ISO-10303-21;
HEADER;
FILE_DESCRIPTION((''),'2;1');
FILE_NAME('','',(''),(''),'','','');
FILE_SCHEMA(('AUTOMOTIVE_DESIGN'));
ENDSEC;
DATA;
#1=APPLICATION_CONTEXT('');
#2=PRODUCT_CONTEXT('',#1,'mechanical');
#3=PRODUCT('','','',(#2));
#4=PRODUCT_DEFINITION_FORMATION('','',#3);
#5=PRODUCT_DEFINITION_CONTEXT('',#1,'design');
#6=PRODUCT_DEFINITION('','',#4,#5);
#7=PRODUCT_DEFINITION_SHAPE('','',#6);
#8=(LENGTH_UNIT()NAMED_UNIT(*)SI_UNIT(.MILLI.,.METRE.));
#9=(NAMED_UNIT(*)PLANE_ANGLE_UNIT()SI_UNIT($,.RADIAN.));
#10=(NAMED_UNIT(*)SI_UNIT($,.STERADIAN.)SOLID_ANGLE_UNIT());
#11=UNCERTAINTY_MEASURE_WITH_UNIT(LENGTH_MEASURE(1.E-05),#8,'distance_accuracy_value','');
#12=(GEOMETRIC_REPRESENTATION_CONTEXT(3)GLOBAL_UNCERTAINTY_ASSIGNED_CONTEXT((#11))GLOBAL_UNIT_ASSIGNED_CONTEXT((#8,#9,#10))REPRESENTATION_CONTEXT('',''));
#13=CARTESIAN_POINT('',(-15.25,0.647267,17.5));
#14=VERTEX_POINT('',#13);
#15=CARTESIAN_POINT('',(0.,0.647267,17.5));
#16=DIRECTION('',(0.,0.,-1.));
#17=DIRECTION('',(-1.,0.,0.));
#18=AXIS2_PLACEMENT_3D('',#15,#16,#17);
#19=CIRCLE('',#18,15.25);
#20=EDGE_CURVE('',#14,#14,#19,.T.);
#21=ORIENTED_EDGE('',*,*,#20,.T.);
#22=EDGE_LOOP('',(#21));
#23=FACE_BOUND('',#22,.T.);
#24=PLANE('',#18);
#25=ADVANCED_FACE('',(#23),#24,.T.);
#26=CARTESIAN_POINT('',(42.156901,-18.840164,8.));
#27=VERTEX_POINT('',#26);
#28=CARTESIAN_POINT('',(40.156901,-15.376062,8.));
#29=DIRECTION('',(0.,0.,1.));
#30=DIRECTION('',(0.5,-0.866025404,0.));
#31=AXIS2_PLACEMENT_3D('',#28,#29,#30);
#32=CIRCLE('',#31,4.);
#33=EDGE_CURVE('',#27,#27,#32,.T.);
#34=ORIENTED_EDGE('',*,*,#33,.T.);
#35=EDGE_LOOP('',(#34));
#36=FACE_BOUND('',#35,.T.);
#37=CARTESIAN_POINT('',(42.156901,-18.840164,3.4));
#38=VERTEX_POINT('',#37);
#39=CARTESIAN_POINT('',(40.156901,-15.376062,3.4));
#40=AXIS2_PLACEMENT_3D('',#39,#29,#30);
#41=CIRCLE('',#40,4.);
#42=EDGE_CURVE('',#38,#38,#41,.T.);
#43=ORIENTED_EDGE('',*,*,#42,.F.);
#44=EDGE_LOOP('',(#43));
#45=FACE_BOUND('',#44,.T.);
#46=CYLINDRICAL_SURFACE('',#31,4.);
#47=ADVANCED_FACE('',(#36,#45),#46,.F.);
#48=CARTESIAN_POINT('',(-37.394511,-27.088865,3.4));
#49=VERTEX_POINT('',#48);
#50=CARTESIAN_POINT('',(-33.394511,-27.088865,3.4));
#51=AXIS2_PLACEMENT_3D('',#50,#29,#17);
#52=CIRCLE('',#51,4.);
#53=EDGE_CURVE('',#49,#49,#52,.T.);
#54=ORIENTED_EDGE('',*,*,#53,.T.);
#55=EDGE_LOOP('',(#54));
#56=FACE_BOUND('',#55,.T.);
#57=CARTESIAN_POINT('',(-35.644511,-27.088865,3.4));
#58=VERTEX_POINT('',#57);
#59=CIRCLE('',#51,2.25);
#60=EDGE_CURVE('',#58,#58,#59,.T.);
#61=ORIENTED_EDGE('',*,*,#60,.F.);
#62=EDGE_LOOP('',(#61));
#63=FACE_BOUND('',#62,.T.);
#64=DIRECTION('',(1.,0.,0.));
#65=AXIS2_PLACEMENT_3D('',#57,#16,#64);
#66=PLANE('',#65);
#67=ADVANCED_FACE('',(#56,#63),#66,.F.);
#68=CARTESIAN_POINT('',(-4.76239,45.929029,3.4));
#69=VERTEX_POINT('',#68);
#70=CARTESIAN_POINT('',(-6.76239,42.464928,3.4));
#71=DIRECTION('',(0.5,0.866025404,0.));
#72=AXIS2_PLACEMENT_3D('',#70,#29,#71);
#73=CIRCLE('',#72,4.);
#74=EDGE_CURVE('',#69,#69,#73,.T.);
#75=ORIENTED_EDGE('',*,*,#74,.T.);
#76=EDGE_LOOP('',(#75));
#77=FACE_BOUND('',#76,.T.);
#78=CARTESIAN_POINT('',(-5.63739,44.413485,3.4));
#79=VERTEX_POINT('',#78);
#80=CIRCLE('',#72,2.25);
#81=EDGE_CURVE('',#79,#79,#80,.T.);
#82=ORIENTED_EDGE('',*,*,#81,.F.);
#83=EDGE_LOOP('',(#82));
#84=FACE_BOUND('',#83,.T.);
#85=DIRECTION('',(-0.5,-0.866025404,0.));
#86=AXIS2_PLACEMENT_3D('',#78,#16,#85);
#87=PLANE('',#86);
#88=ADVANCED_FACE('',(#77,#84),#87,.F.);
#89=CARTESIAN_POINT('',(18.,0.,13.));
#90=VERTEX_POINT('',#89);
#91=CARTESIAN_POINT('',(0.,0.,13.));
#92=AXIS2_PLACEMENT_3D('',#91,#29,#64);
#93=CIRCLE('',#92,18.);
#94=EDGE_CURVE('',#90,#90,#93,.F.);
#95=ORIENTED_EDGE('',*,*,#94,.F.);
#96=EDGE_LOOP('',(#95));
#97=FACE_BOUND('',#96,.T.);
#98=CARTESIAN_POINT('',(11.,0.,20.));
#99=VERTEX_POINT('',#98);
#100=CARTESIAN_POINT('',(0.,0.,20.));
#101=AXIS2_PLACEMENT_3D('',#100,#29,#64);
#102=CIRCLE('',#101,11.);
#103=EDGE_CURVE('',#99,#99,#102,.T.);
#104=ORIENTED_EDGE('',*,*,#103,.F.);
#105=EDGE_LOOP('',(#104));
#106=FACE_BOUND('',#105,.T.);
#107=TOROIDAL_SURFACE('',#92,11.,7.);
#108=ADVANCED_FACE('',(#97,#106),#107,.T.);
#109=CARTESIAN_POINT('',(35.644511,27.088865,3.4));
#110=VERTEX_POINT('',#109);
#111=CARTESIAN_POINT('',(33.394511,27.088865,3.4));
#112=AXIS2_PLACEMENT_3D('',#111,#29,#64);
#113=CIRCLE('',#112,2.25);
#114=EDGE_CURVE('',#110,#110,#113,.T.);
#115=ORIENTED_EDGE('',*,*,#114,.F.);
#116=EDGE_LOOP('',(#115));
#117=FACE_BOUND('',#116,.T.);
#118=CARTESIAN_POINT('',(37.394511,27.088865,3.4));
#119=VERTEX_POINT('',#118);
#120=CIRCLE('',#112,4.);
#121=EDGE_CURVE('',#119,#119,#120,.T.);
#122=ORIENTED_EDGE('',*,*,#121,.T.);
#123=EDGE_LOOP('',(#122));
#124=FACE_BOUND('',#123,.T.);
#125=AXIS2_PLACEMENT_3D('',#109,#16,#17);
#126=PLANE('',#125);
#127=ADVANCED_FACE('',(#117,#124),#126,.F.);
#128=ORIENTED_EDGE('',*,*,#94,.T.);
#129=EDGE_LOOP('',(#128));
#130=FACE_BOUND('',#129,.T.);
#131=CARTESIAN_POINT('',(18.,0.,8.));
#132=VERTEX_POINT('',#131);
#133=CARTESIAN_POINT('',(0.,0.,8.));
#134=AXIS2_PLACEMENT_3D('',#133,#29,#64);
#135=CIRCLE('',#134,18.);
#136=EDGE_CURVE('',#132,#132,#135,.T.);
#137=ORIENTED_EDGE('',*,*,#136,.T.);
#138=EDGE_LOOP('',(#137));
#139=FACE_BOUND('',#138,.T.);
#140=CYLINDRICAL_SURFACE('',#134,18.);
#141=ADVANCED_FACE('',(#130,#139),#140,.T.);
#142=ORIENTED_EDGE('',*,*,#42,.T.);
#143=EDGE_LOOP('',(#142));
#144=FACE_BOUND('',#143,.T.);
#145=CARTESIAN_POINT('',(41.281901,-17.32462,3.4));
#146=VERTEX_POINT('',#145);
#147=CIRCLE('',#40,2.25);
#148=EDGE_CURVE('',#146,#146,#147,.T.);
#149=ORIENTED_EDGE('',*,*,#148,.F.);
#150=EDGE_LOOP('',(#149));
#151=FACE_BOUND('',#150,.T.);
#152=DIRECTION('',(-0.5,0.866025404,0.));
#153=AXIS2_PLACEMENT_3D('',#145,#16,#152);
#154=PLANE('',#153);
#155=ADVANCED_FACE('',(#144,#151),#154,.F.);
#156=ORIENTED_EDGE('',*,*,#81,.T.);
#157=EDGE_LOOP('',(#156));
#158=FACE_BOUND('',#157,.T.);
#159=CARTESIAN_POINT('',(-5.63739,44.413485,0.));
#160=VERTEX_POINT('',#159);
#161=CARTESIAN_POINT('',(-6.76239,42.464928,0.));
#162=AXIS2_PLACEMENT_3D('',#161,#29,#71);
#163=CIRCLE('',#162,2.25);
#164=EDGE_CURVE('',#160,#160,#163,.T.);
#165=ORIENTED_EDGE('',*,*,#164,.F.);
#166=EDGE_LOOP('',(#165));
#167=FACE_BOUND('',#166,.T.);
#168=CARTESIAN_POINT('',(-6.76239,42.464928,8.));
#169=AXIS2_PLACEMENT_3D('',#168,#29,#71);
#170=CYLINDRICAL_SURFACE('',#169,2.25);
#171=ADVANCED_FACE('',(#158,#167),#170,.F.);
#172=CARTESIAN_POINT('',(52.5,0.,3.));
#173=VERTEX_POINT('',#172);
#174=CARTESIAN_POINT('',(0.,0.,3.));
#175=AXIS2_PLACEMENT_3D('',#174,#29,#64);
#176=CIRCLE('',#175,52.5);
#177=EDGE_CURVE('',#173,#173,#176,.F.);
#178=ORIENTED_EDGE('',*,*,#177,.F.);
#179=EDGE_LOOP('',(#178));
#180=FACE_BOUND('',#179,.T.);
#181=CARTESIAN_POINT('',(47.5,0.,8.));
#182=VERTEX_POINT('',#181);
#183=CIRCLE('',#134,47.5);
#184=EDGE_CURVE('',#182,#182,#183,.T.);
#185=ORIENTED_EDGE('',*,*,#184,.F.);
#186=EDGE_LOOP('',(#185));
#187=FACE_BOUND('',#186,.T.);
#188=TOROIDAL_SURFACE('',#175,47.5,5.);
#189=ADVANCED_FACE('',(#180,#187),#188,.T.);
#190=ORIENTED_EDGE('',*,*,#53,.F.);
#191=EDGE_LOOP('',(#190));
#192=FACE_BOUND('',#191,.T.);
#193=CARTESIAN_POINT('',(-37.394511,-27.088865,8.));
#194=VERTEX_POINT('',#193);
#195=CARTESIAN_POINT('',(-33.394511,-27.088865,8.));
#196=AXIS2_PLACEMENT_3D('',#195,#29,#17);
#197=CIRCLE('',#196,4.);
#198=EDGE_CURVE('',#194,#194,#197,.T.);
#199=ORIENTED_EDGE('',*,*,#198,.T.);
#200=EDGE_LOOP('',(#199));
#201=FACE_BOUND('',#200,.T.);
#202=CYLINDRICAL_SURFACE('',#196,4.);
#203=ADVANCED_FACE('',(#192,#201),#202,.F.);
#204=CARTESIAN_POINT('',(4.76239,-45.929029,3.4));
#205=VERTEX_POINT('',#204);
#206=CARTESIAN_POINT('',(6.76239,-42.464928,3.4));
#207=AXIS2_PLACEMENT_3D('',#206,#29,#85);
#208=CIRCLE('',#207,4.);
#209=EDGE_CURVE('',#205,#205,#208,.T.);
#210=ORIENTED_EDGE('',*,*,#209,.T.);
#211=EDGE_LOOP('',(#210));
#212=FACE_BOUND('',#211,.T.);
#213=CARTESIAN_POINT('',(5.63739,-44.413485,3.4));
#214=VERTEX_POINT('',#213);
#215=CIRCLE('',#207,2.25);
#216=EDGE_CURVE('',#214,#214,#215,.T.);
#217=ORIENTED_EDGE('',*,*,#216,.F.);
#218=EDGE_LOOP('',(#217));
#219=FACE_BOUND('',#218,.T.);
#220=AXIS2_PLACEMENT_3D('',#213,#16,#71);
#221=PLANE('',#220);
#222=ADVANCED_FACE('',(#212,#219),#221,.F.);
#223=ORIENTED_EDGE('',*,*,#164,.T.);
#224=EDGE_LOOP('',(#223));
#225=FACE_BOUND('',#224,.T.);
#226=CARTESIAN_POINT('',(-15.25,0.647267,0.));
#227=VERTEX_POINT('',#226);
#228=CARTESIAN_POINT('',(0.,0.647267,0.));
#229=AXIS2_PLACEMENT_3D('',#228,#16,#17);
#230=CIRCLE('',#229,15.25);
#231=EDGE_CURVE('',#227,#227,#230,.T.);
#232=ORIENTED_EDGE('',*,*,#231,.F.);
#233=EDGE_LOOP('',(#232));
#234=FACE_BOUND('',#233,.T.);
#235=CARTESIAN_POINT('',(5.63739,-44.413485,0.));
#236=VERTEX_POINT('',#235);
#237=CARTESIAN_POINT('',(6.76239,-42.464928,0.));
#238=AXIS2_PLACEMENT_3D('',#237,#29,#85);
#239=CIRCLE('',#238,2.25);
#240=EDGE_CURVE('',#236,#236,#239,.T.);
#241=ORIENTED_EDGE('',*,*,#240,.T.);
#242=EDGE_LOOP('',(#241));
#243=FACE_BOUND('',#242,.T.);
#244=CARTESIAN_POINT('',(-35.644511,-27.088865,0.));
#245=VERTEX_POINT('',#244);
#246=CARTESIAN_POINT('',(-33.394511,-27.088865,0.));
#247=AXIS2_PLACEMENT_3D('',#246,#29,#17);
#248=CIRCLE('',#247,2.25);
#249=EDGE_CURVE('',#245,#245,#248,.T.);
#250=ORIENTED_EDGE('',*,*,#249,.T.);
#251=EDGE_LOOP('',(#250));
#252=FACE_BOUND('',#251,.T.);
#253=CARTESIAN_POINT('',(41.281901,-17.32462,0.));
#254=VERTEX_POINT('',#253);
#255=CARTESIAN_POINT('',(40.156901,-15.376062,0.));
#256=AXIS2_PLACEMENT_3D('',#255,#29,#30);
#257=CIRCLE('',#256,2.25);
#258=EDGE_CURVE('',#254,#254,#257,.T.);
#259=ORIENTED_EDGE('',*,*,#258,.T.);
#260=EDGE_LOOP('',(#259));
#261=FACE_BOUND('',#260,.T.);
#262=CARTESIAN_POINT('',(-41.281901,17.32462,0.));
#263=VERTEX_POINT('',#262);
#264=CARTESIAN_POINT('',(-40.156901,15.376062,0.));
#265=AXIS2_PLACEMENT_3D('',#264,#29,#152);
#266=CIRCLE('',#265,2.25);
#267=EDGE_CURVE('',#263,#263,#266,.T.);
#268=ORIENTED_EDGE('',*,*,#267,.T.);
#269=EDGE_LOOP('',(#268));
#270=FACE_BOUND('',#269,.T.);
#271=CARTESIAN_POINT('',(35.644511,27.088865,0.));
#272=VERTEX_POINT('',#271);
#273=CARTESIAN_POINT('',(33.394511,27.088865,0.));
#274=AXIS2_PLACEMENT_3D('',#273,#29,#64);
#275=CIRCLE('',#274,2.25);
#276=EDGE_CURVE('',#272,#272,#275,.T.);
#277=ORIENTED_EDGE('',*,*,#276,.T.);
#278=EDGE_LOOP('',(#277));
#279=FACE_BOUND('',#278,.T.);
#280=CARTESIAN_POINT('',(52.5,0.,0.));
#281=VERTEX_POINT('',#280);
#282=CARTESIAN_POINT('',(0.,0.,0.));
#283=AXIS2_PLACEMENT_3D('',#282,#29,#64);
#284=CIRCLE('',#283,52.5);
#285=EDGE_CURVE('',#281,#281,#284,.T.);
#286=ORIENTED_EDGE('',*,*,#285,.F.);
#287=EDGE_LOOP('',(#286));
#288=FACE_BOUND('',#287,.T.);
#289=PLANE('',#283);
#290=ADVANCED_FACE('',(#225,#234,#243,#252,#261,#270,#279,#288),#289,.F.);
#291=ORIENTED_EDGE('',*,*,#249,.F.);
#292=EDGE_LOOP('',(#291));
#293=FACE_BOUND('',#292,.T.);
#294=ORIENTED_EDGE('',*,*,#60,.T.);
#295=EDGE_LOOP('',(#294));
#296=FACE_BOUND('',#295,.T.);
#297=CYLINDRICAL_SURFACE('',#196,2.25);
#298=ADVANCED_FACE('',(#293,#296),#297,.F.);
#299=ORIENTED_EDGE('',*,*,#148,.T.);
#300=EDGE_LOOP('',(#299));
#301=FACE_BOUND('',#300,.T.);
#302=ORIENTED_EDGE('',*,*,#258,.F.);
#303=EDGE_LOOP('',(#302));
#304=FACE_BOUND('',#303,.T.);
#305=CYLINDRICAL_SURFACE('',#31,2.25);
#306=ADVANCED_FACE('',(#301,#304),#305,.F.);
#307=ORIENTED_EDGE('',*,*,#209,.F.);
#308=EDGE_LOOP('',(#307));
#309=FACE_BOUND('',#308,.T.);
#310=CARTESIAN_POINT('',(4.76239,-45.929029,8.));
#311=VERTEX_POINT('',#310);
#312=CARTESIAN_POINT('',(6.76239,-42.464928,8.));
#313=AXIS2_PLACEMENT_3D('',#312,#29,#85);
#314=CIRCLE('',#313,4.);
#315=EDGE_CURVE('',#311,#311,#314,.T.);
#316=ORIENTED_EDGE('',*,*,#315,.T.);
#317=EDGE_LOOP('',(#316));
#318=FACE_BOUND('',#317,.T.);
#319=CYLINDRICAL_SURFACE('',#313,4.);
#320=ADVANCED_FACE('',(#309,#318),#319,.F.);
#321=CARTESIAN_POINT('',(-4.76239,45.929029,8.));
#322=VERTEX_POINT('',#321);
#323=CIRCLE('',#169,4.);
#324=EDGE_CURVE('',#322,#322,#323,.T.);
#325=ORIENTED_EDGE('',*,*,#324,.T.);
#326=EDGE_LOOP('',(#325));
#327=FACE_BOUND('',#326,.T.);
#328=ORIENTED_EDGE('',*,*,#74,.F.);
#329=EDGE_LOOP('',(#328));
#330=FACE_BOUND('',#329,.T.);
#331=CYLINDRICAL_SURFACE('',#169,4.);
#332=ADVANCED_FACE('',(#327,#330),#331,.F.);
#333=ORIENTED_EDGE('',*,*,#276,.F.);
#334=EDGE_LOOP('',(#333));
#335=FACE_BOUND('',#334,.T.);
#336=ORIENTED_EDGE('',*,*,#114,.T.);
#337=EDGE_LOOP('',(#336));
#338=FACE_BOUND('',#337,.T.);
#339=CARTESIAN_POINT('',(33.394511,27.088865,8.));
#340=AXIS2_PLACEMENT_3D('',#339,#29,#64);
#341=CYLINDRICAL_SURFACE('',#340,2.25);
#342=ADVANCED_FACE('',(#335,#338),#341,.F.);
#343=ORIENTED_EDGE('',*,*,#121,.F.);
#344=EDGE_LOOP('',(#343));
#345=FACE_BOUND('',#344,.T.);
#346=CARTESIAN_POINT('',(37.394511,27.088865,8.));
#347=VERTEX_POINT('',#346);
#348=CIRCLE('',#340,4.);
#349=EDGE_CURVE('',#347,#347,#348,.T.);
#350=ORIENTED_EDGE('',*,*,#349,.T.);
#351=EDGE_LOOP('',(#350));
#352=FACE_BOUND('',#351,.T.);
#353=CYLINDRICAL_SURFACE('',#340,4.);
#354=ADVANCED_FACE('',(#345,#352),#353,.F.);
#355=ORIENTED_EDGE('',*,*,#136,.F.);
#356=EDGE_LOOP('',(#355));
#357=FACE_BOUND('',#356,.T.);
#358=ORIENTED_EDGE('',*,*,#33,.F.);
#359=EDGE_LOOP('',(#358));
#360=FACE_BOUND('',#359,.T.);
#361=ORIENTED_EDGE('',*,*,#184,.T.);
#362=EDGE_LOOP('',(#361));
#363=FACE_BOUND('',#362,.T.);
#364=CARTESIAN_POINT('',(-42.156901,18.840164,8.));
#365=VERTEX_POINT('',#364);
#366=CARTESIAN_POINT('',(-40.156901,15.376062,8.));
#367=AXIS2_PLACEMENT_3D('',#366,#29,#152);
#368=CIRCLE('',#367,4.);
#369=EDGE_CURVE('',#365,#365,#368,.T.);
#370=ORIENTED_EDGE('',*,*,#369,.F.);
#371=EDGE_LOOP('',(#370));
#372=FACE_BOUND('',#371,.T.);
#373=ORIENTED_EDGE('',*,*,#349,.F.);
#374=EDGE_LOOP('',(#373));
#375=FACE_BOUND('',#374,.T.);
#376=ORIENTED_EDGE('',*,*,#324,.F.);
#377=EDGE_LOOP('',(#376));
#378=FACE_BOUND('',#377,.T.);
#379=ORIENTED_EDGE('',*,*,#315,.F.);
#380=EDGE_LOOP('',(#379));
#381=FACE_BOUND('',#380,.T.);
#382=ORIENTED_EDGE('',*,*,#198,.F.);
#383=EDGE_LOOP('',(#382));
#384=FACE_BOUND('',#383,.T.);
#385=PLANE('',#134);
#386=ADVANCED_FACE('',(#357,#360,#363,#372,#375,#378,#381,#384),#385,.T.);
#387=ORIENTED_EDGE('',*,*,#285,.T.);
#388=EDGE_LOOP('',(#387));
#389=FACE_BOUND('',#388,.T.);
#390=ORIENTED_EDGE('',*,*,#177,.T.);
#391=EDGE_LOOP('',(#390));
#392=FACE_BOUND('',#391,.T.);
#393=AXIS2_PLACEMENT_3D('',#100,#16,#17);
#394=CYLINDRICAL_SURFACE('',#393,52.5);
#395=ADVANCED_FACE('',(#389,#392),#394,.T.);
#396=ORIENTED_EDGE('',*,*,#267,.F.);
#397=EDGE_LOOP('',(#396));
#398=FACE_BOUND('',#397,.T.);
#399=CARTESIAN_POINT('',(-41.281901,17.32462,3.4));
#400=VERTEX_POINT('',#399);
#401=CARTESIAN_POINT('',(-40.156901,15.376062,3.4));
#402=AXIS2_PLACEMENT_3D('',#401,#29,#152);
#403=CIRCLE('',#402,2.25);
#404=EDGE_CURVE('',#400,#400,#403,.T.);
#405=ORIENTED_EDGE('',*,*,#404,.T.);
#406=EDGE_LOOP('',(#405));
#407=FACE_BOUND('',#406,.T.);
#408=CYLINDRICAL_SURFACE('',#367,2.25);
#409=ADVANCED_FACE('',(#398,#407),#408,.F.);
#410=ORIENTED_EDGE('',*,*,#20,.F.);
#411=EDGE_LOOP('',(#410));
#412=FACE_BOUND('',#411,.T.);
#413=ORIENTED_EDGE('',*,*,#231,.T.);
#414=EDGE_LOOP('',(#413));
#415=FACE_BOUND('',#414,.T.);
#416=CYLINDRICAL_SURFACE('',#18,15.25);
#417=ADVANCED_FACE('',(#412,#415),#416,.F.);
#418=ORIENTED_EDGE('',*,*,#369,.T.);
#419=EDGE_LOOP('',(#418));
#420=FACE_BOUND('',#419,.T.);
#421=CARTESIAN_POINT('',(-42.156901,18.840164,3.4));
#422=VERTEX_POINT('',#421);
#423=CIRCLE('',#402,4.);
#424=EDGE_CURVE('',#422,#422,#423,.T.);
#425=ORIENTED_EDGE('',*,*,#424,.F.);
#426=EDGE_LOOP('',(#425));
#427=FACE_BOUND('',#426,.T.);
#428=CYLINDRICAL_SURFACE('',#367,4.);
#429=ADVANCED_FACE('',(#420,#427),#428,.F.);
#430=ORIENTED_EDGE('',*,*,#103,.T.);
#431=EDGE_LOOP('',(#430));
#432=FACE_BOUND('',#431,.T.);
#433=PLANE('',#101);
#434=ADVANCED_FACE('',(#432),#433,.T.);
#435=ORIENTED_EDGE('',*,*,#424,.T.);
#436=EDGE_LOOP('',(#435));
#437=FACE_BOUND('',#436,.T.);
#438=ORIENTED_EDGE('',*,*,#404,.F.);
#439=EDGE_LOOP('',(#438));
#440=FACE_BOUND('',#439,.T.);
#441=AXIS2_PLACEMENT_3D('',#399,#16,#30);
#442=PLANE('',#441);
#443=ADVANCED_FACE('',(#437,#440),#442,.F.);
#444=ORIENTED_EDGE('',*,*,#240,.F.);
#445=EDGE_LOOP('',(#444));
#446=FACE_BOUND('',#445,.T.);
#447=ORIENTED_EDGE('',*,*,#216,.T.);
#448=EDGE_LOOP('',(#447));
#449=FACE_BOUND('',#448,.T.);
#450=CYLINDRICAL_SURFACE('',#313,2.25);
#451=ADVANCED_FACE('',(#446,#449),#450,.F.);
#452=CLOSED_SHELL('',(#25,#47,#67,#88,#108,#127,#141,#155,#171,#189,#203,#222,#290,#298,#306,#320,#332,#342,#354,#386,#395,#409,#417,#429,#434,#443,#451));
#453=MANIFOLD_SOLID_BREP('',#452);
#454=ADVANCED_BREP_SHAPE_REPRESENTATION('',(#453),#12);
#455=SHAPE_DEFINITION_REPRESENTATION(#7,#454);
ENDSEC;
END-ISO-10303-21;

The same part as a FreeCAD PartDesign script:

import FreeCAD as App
import Part
import Sketcher

V = App.Vector


def edges_at(feature, points):
    """Names of the edges that pass closest to the given points."""
    edges = feature.Shape.Edges
    near = lambda p: min(range(len(edges)), key=lambda i: edges[i].distToShape(Part.Vertex(*p))[0])
    return sorted({f"Edge{near(p) + 1}" for p in points})

doc = App.newDocument("Part")
body = doc.addObject("PartDesign::Body", "Body")

sketch1 = doc.addObject("Sketcher::SketchObject", "Sketch")
body.addObject(sketch1)
sketch1.AttachmentSupport = (doc.XY_Plane, [""])
sketch1.MapMode = "FlatFace"
sketch1.addGeometry(Part.Circle(V(0, 0, 0), V(0, 0, 1), 52.5), False)
sketch1.addConstraint([
    Sketcher.Constraint("Coincident", 0, 3, -1, 1),
    Sketcher.Constraint("Diameter", 0, 105.0),
])
pad1 = doc.addObject("PartDesign::Pad", "Pad")
body.addObject(pad1)
pad1.Profile = sketch1
pad1.Length = 20

sketch2 = doc.addObject("Sketcher::SketchObject", "Sketch001")
body.addObject(sketch2)
sketch2.AttachmentSupport = (doc.XY_Plane, [""])
sketch2.MapMode = "FlatFace"
sketch2.AttachmentOffset = App.Placement(V(0, 0, 8), App.Rotation())
sketch2.addGeometry([
    Part.Circle(V(0, 0, 0), V(0, 0, 1), 52.5),
    Part.Circle(V(0, 0, 0), V(0, 0, 1), 18),
], False)
sketch2.addConstraint([
    Sketcher.Constraint("Coincident", 0, 3, -1, 1),
    Sketcher.Constraint("Coincident", 1, 3, -1, 1),
    Sketcher.Constraint("Diameter", 0, 105.0),
    Sketcher.Constraint("Diameter", 1, 36.0),
])
pocket1 = doc.addObject("PartDesign::Pocket", "Pocket")
body.addObject(pocket1)
pocket1.Profile = sketch2
pocket1.Length = 12
pocket1.Reversed = True

sketch3 = doc.addObject("Sketcher::SketchObject", "Sketch002")
body.addObject(sketch3)
sketch3.AttachmentSupport = (doc.XY_Plane, [""])
sketch3.MapMode = "FlatFace"
sketch3.addGeometry(Part.Circle(V(0, 0.647267, 0), V(0, 0, 1), 15.25), False)
sketch3.addConstraint([
    Sketcher.Constraint("PointOnObject", 0, 3, -2),
    Sketcher.Constraint("Diameter", 0, 30.5),
    Sketcher.Constraint("DistanceY", -1, 1, 0, 3, 0.647267),
])
pocket2 = doc.addObject("PartDesign::Pocket", "Pocket001")
body.addObject(pocket2)
pocket2.Profile = sketch3
pocket2.Length = 17.5
pocket2.Reversed = True

sketch4 = doc.addObject("Sketcher::SketchObject", "Sketch003")
body.addObject(sketch4)
sketch4.AttachmentSupport = (doc.XY_Plane, [""])
sketch4.MapMode = "FlatFace"
sketch4.AttachmentOffset = App.Placement(V(0, 0, 8), App.Rotation())
sketch4.addGeometry(Part.Circle(V(33.394511, 27.088865, 0), V(0, 0, 1), 2.25), False)
sketch4.addConstraint([
    Sketcher.Constraint("Diameter", 0, 4.5),
    Sketcher.Constraint("DistanceX", -1, 1, 0, 3, 33.394511),
    Sketcher.Constraint("DistanceY", -1, 1, 0, 3, 27.088865),
])
doc.recompute()
hole = doc.addObject("PartDesign::Hole", "Hole")
body.addObject(hole)
hole.Profile = sketch4
hole.ThreadType = "None"
hole.Diameter = 4.5
hole.DepthType = "ThroughAll"
hole.HoleCutType = "Counterbore"
hole.HoleCutDiameter = 8
hole.HoleCutDepth = 4.6
doc.recompute()

polarpattern = doc.addObject("PartDesign::PolarPattern", "PolarPattern")
body.addObject(polarpattern)
polarpattern.Originals = [hole]
polarpattern.Axis = (doc.Z_Axis, [""])
polarpattern.Angle = 360
polarpattern.Occurrences = 6
body.Tip = polarpattern
doc.recompute()

fillet = doc.addObject("PartDesign::Fillet", "Fillet")
body.addObject(fillet)
fillet.Base = (polarpattern, edges_at(polarpattern, [(-18, 0, 20)]))
fillet.Radius = 7
doc.recompute()

fillet2 = doc.addObject("PartDesign::Fillet", "Fillet001")
body.addObject(fillet2)
fillet2.Base = (fillet, edges_at(fillet, [(-52.5, 0, 8)]))
fillet2.Radius = 5

doc.recompute()
